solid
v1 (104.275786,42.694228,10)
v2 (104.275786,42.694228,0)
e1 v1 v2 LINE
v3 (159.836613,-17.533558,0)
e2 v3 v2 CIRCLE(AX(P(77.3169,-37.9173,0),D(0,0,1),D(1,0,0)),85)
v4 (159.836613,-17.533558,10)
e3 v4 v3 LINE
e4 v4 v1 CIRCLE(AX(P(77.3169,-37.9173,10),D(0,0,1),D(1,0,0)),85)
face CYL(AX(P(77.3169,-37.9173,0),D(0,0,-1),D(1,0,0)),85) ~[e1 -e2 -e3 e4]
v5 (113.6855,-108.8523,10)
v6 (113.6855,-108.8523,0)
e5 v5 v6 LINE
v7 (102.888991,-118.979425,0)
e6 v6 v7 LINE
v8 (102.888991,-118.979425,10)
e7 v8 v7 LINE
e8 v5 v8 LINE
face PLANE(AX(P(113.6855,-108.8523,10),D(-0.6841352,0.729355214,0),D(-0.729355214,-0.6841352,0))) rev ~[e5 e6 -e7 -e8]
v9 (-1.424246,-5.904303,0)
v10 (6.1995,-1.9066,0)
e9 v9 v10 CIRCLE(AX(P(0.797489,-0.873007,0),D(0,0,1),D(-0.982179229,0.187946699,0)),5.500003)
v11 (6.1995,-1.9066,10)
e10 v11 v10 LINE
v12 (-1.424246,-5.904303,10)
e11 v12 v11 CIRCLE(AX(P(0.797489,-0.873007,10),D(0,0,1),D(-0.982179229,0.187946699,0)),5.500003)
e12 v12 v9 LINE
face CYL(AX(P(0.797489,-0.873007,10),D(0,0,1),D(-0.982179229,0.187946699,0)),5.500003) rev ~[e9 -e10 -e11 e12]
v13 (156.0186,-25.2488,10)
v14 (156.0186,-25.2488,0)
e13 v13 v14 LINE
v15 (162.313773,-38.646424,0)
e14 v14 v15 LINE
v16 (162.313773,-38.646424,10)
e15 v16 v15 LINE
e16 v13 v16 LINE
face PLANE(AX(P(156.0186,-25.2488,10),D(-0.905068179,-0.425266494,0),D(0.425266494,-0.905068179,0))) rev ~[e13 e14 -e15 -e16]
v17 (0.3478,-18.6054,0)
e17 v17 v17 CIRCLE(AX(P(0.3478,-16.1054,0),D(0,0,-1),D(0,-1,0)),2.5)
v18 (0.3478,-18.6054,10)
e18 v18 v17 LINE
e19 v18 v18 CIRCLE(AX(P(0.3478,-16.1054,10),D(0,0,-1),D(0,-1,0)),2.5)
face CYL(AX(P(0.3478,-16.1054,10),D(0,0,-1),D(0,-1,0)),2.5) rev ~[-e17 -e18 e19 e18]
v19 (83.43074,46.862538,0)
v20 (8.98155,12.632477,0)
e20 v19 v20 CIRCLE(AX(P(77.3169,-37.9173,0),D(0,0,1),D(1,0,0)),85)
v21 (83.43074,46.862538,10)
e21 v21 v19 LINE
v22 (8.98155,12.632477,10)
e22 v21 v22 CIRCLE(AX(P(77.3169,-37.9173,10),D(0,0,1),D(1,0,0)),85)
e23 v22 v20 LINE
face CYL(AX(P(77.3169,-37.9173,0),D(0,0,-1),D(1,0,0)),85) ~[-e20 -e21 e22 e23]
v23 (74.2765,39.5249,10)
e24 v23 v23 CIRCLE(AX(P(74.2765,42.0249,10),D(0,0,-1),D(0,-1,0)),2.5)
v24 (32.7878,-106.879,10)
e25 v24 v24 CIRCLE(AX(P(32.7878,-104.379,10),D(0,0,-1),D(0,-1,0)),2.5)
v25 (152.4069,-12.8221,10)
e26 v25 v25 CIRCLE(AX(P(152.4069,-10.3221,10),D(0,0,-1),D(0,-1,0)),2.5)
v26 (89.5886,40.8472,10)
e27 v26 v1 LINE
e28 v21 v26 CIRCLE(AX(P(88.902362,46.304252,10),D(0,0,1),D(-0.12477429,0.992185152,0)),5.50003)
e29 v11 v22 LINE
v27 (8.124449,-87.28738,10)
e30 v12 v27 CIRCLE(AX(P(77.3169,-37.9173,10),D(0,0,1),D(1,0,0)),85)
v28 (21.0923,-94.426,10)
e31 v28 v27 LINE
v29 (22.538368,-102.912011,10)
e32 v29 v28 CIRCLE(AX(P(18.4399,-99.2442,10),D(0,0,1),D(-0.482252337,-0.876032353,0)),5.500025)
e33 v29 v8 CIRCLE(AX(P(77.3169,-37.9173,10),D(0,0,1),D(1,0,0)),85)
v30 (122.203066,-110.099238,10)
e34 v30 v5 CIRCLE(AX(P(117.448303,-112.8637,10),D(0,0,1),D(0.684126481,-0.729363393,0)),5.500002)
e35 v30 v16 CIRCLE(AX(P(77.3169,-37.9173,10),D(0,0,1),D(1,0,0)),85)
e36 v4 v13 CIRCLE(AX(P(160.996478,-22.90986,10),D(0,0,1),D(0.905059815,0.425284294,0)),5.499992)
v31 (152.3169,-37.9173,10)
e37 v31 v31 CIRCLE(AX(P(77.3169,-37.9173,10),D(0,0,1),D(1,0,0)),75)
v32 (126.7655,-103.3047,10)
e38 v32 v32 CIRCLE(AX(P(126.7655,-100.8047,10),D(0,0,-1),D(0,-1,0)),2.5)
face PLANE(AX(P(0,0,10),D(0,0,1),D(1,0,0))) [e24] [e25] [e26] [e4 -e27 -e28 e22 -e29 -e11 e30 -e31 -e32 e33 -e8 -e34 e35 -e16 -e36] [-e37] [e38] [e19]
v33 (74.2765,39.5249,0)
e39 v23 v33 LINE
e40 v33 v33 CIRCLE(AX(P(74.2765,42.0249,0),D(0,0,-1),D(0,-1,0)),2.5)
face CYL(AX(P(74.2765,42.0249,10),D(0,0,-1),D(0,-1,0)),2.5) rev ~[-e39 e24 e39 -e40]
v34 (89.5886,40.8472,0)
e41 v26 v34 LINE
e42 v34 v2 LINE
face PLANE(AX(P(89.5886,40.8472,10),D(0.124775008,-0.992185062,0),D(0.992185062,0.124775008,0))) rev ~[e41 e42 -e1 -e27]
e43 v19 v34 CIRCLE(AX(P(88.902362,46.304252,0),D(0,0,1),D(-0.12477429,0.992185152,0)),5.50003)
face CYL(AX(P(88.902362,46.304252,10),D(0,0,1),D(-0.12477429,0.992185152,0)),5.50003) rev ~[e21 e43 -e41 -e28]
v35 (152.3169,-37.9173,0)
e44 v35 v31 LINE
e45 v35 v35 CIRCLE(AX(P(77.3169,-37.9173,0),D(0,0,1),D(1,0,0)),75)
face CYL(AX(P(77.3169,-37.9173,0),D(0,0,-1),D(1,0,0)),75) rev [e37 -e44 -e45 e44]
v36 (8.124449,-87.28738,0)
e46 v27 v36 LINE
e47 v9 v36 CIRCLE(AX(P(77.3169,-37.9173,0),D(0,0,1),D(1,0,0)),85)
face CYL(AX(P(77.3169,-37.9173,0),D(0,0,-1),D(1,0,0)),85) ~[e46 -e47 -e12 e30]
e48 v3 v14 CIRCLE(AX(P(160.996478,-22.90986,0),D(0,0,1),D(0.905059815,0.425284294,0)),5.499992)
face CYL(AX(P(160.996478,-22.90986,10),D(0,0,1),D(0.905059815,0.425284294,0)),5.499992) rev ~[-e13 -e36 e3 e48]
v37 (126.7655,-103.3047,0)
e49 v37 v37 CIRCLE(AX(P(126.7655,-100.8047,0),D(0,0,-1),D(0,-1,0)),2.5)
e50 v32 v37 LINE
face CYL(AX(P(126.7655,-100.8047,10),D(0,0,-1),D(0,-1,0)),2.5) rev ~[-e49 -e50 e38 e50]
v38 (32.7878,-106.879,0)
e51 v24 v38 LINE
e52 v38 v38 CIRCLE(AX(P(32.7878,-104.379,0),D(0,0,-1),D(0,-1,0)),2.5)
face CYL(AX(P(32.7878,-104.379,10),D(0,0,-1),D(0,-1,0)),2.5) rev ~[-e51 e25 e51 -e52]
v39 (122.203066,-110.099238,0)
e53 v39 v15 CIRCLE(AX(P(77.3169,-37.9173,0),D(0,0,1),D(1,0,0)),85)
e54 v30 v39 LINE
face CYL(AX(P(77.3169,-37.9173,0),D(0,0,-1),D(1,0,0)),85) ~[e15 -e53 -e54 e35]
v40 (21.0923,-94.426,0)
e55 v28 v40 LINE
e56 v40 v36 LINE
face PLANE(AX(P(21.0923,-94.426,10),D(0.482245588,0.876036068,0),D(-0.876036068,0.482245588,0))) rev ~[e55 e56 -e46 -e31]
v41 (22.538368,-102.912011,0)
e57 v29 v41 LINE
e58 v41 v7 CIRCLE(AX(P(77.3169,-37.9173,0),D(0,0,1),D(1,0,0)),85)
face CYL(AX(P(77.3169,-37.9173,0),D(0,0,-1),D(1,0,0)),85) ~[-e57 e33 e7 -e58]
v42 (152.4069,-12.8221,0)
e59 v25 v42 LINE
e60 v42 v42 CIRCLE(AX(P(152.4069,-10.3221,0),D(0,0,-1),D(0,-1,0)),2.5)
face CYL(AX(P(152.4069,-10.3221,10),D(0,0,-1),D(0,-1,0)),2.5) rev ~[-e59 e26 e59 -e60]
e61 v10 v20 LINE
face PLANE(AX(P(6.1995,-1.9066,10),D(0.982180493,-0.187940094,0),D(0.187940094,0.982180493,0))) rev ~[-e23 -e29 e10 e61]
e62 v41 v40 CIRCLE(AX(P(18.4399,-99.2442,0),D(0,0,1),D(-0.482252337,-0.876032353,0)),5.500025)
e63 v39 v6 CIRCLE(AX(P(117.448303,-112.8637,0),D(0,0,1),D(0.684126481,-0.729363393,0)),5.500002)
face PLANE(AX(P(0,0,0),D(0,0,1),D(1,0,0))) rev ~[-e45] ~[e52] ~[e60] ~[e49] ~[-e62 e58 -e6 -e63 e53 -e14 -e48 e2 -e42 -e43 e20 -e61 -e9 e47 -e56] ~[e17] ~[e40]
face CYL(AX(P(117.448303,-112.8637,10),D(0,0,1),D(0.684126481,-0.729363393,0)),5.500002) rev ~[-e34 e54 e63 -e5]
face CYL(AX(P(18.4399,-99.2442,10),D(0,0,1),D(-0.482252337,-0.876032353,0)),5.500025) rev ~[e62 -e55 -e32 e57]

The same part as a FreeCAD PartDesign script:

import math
import FreeCAD as App
import Part
import Sketcher

doc = App.newDocument("Part")
body = doc.addObject("PartDesign::Body", "Body")

# Sketch on XY plane
sketch1 = doc.addObject("Sketcher::SketchObject", "Sketch")
body.addObject(sketch1)
sketch1.AttachmentSupport = (doc.XY_Plane, [""])
sketch1.MapMode = "FlatFace"
sketch1.addGeometry([
    Part.Circle(App.Vector(77, -38, 0), App.Vector(0, 0, 1), 85),
    Part.Circle(App.Vector(77, -38, 0), App.Vector(0, 0, 1), 75),
], False)
sketch1.addConstraint([
    Sketcher.Constraint("Coincident", 1, 3, 0, 3),
    Sketcher.Constraint("Diameter", 0, 170.0),
    Sketcher.Constraint("Diameter", 1, 150.0),
    Sketcher.Constraint("DistanceX", -1, 1, 0, 3, 77.317),
    Sketcher.Constraint("DistanceY", 0, 3, -1, 1, 37.9173),
])
pad1 = doc.addObject("PartDesign::Pad", "Pad")
body.addObject(pad1)
pad1.Profile = sketch1
pad1.Length = 10

# Sketch on XY plane
sketch2 = doc.addObject("Sketcher::SketchObject", "Sketch001")
body.addObject(sketch2)
sketch2.AttachmentSupport = (doc.XY_Plane, [""])
sketch2.MapMode = "FlatFace"
sketch2.AttachmentOffset = App.Placement(App.Vector(0, 0, 10), App.Rotation())
sketch2.addGeometry([
    Part.ArcOfCircle(Part.Circle(App.Vector(117, -113, 0), App.Vector(0, 0, 1), 6), math.radians(-47), math.radians(133)),  # 0
    Part.LineSegment(App.Vector(114, -109, 0), App.Vector(99, -123, 0)),  # 1
    Part.ArcOfCircle(Part.Circle(App.Vector(103, -127, 0), App.Vector(0, 0, 1), 5), math.radians(133), math.radians(313)),  # 2
    Part.LineSegment(App.Vector(107, -131, 0), App.Vector(121, -117, 0)),  # 3
    Part.ArcOfCircle(Part.Circle(App.Vector(161, -23, 0), App.Vector(0, 0, 1), 5), math.radians(25), math.radians(205)),  # 4
    Part.LineSegment(App.Vector(156, -25, 0), App.Vector(165, -43, 0)),  # 5
    Part.ArcOfCircle(Part.Circle(App.Vector(170, -41, 0), App.Vector(0, 0, 1), 5), math.radians(-155), math.radians(25)),  # 6
    Part.LineSegment(App.Vector(174, -39, 0), App.Vector(166, -21, 0)),  # 7
    Part.ArcOfCircle(Part.Circle(App.Vector(89, 46, 0), App.Vector(0, 0, 1), 5), math.radians(97), math.radians(277)),  # 8
    Part.LineSegment(App.Vector(90, 41, 0), App.Vector(109, 43, 0)),  # 9
    Part.ArcOfCircle(Part.Circle(App.Vector(109, 49, 0), App.Vector(0, 0, 1), 5), math.radians(-83), math.radians(97)),  # 10
    Part.LineSegment(App.Vector(108, 54, 0), App.Vector(88, 52, 0)),  # 11
    Part.ArcOfCircle(Part.Circle(App.Vector(1, -1, 0), App.Vector(0, 0, 1), 6), math.radians(169), math.radians(349)),  # 12
    Part.LineSegment(App.Vector(6, -2, 0), App.Vector(10, 18, 0)),  # 13
    Part.ArcOfCircle(Part.Circle(App.Vector(5, 19, 0), App.Vector(0, 0, 1), 5), math.radians(-11), math.radians(169)),  # 14
    Part.LineSegment(App.Vector(-1, 20, 0), App.Vector(-5, 0, 0)),  # 15
    Part.ArcOfCircle(Part.Circle(App.Vector(18, -99, 0), App.Vector(0, 0, 1), 6), math.radians(-119), math.radians(61)),  # 16
    Part.LineSegment(App.Vector(21, -94, 0), App.Vector(4, -85, 0)),  # 17
    Part.ArcOfCircle(Part.Circle(App.Vector(1, -90, 0), App.Vector(0, 0, 1), 5), math.radians(61), math.radians(241)),  # 18
    Part.LineSegment(App.Vector(-2, -94, 0), App.Vector(16, -104, 0)),  # 19
], False)
sketch2.addConstraint([
    Sketcher.Constraint("Tangent", 0, 2, 1, 1),
    Sketcher.Constraint("Tangent", 1, 2, 2, 1),
    Sketcher.Constraint("Tangent", 2, 2, 3, 1),
    Sketcher.Constraint("Tangent", 3, 2, 0, 1),
    Sketcher.Constraint("Tangent", 4, 2, 5, 1),
    Sketcher.Constraint("Tangent", 5, 2, 6, 1),
    Sketcher.Constraint("Tangent", 6, 2, 7, 1),
    Sketcher.Constraint("Tangent", 7, 2, 4, 1),
    Sketcher.Constraint("Tangent", 8, 2, 9, 1),
    Sketcher.Constraint("Tangent", 9, 2, 10, 1),
    Sketcher.Constraint("Tangent", 10, 2, 11, 1),
    Sketcher.Constraint("Tangent", 11, 2, 8, 1),
    Sketcher.Constraint("Tangent", 12, 2, 13, 1),
    Sketcher.Constraint("Tangent", 13, 2, 14, 1),
    Sketcher.Constraint("Tangent", 14, 2, 15, 1),
    Sketcher.Constraint("Tangent", 15, 2, 12, 1),
    Sketcher.Constraint("Tangent", 16, 2, 17, 1),
    Sketcher.Constraint("Tangent", 17, 2, 18, 1),
    Sketcher.Constraint("Tangent", 18, 2, 19, 1),
    Sketcher.Constraint("Tangent", 19, 2, 16, 1),
    Sketcher.Constraint("Equal", 0, 2),
    Sketcher.Constraint("Equal", 2, 4),
    Sketcher.Constraint("Equal", 4, 6),
    Sketcher.Constraint("Equal", 6, 8),
    Sketcher.Constraint("Equal", 8, 10),
    Sketcher.Constraint("Equal", 10, 12),
    Sketcher.Constraint("Equal", 12, 14),
    Sketcher.Constraint("Equal", 14, 16),
    Sketcher.Constraint("Equal", 16, 18),
    Sketcher.Constraint("Equal", 3, 5),
    Sketcher.Constraint("Equal", 7, 9),
    Sketcher.Constraint("Equal", 11, 13),
    Sketcher.Constraint("Equal", 15, 17),
    Sketcher.Constraint("Radius", 0, 5.5),
    Sketcher.Constraint("Distance", 1, 20.0),
    Sketcher.Constraint("DistanceX", -1, 1, 16, 3, 18.44),
    Sketcher.Constraint("DistanceY", 5, 2, -1, 1, 43.35),
    Sketcher.Constraint("DistanceX", 1, 2, 0, 3, 18.35),
    Sketcher.Constraint("DistanceY", 0, 2, 6, 2, 70.18),
    Sketcher.Constraint("DistanceX", 8, 2, 4, 2, 66.43),
    Sketcher.Constraint("DistanceX", 8, 3, 9, 2, 20.53),
    Sketcher.Constraint("DistanceY", 12, 3, 13, 2, 18.61),
    Sketcher.Constraint("DistanceX", -1, 1, 10, 3, 108.746),
    Sketcher.Constraint("DistanceY", 12, 3, -1, 1, 0.873),
    Sketcher.Constraint("DistanceY", 1, 2, -1, 1, 122.535),
    Sketcher.Constraint("DistanceX", -1, 1, 2, 2, 106.624),
    Sketcher.Constraint("DistanceY", 16, 2, -1, 1, 94.426),
    Sketcher.Constraint("DistanceY", 17, 2, -1, 1, 84.781),
    Sketcher.Constraint("DistanceY", 4, 3, 8, 3, 69.214),
    Sketcher.Constraint("DistanceX", 12, 3, 4, 3, 160.199),
])
pocket1 = doc.addObject("PartDesign::Pocket", "Pocket")
body.addObject(pocket1)
pocket1.Profile = sketch2
pocket1.Length = 10

# Sketch on XY plane
sketch3 = doc.addObject("Sketcher::SketchObject", "Sketch002")
body.addObject(sketch3)
sketch3.AttachmentSupport = (doc.XY_Plane, [""])
sketch3.MapMode = "FlatFace"
sketch3.AttachmentOffset = App.Placement(App.Vector(0, 0, 10), App.Rotation())
sketch3.addGeometry([
    Part.Circle(App.Vector(32.8, -104.4, 0), App.Vector(0, 0, 1), 2.5),  # 0
    Part.Circle(App.Vector(126.8, -100.8, 0), App.Vector(0, 0, 1), 2.5),  # 1
    Part.Circle(App.Vector(152.4, -10.3, 0), App.Vector(0, 0, 1), 2.5),  # 2
    Part.Circle(App.Vector(74.3, 42, 0), App.Vector(0, 0, 1), 2.5),  # 3
    Part.Circle(App.Vector(0.3, -16.1, 0), App.Vector(0, 0, 1), 2.5),  # 4
], False)
sketch3.addConstraint([
    Sketcher.Constraint("Equal", 0, 1),
    Sketcher.Constraint("Equal", 1, 2),
    Sketcher.Constraint("Equal", 2, 3),
    Sketcher.Constraint("Equal", 3, 4),
    Sketcher.Constraint("Diameter", 0, 5.0),
    Sketcher.Constraint("DistanceX", 4, 3, 0, 3, 32.44),
    Sketcher.Constraint("DistanceY", 0, 3, -1, 1, 104.379),
    Sketcher.Constraint("DistanceX", -1, 1, 2, 3, 152.407),
    Sketcher.Constraint("DistanceY", 2, 3, -1, 1, 10.322),
    Sketcher.Constraint("DistanceY", -1, 1, 3, 3, 42.025),
    Sketcher.Constraint("DistanceX", 0, 3, 2, 3, 119.619),
    Sketcher.Constraint("DistanceX", 3, 3, 1, 3, 52.489),
    Sketcher.Constraint("DistanceX", -1, 1, 1, 3, 126.7655),
    Sketcher.Constraint("DistanceY", 1, 3, -1, 1, 100.8047),
    Sketcher.Constraint("DistanceY", 4, 3, -1, 1, 16.1054),
])
doc.recompute()
hole = doc.addObject("PartDesign::Hole", "Hole")
body.addObject(hole)
hole.Profile = sketch3
hole.ThreadType = "None"
hole.Diameter = 5
hole.DepthType = "ThroughAll"

doc.recompute()
